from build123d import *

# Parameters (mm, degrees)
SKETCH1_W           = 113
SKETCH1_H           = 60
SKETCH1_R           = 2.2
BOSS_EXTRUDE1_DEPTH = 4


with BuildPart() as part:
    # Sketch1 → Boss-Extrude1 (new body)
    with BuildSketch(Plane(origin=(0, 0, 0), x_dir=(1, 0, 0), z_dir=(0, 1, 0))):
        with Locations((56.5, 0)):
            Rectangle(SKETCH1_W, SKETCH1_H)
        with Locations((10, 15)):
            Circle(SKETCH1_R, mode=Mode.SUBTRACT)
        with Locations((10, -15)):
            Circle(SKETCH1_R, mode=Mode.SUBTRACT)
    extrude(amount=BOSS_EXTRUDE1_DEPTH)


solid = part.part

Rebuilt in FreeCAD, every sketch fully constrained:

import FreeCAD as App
import Part
import Sketcher

V = App.Vector


def add_polygon(sketch, points):
    """Adds a closed chain of lines whose ends are joined by coincident constraints."""
    first, n = sketch.GeometryCount, len(points)
    for a, b in zip(points, points[1:] + points[:1]):
        sketch.addGeometry(Part.LineSegment(App.Vector(*a, 0), App.Vector(*b, 0)), False)
    for i in range(n):
        sketch.addConstraint(Sketcher.Constraint("Coincident", first + i, 2, first + (i + 1) % n, 1))

doc = App.newDocument("Part")
body = doc.addObject("PartDesign::Body", "Body")

sketch1 = body.newObject("Sketcher::SketchObject", "Sketch")
sketch1.AttachmentSupport = (doc.getObject("XZ_Plane"), [""])
sketch1.MapMode = "FlatFace"
add_polygon(sketch1, [(0, -30), (0, 30), (113, 30), (113, -30)])
sketch1.addGeometry(Part.Circle(V(10, 15, 0), V(0, 0, 1), 2.2), False)
sketch1.addGeometry(Part.Circle(V(10, -15, 0), V(0, 0, 1), 2.2), False)
sketch1.addConstraint(Sketcher.Constraint("Vertical", 0))
sketch1.addConstraint(Sketcher.Constraint("Horizontal", 1))
sketch1.addConstraint(Sketcher.Constraint("Vertical", 2))
sketch1.addConstraint(Sketcher.Constraint("Horizontal", 3))
sketch1.addConstraint(Sketcher.Constraint("Equal", 4, 5))
sketch1.addConstraint(Sketcher.Constraint("Symmetric", 0, 2, 3, 2, -1, 1))
sketch1.addConstraint(Sketcher.Constraint("Symmetric", 4, 3, 5, 3, -1))
sketch1.addConstraint(Sketcher.Constraint("Diameter", 4, 4.4))
sketch1.addConstraint(Sketcher.Constraint("DistanceX", 1, 1, 1, 2, 113.0))
sketch1.addConstraint(Sketcher.Constraint("DistanceY", 0, 1, 0, 2, 60.0))
sketch1.addConstraint(Sketcher.Constraint("DistanceX", -1, 1, 4, 3, 10.0))
sketch1.addConstraint(Sketcher.Constraint("DistanceY", -1, 1, 4, 3, 15.0))
pad1 = body.newObject("PartDesign::Pad", "Pad")
pad1.Profile = sketch1
pad1.Length = 4
pad1.Reversed = True

doc.recompute()
